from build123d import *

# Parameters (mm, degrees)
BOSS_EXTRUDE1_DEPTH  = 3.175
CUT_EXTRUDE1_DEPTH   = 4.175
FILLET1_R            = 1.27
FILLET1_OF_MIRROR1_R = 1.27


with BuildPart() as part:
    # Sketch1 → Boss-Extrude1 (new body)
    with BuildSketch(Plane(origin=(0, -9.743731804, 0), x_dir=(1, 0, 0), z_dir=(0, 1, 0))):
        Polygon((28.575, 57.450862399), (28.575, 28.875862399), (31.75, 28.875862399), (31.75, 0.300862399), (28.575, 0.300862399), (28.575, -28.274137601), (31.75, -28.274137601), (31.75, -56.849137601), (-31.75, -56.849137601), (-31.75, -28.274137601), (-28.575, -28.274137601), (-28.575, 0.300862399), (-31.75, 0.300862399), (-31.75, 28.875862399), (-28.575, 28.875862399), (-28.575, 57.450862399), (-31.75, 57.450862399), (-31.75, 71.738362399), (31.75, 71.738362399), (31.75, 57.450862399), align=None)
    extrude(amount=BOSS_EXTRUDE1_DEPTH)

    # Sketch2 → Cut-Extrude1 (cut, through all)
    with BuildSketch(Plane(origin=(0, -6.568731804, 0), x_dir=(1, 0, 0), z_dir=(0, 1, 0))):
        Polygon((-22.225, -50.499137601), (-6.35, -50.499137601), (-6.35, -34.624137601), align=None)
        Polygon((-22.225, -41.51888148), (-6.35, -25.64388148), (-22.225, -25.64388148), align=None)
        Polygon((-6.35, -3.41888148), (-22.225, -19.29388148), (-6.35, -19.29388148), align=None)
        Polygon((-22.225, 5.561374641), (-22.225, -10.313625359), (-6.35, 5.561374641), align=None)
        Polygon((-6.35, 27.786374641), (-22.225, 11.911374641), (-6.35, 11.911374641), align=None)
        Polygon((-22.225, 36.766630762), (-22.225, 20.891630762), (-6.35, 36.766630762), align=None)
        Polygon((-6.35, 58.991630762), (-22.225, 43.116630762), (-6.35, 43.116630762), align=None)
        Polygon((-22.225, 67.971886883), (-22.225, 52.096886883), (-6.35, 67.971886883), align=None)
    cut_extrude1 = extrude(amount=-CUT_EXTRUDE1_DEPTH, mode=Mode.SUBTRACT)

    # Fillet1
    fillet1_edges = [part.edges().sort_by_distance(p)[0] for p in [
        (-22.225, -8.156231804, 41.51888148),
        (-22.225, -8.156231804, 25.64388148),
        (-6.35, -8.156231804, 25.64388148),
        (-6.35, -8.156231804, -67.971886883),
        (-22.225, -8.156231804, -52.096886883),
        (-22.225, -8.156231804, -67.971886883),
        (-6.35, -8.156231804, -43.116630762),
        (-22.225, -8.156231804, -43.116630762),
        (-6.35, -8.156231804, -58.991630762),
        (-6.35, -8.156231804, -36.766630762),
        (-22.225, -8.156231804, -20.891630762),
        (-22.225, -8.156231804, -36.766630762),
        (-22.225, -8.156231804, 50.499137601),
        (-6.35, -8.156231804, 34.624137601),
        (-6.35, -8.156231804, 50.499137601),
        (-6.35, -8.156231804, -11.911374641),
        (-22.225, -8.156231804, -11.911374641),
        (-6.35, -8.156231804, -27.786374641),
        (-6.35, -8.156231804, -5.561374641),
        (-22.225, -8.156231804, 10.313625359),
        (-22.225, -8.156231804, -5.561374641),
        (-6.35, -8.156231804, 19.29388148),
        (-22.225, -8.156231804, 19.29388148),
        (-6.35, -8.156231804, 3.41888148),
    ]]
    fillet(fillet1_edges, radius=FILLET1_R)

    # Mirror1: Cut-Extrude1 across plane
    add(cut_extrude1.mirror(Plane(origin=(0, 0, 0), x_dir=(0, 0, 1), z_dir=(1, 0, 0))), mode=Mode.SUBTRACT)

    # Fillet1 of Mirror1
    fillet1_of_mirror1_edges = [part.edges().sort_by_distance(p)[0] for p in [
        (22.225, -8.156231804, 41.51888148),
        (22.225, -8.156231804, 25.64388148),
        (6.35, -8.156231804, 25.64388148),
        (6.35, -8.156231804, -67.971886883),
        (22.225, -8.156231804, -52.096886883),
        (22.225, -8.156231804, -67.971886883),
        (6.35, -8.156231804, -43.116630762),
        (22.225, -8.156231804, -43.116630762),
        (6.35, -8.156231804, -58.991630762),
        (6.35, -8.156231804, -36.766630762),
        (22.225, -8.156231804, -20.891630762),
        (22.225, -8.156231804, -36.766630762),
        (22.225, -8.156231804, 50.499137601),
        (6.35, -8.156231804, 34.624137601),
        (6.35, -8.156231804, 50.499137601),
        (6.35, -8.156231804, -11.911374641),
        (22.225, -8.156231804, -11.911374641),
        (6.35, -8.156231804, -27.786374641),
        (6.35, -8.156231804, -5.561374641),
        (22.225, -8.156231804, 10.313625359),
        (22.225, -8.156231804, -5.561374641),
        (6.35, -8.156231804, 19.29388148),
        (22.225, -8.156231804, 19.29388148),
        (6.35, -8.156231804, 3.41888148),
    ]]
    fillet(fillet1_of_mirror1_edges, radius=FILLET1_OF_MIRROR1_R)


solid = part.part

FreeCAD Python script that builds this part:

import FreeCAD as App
import Part
import Sketcher
from FreeCAD import Vector
Q = App.Units.Quantity


def edges_at(feature, points):
    """Names of the edges that pass closest to the given points."""
    edges = feature.Shape.Edges
    near = lambda p: min(range(len(edges)), key=lambda i: edges[i].distToShape(Part.Vertex(*p))[0])
    return sorted({f"Edge{near(p) + 1}" for p in points})

doc = App.newDocument("Part")
body = doc.addObject("PartDesign::Body", "Body")

sketch1 = body.newObject("Sketcher::SketchObject", "Sketch")
sketch1.AttachmentSupport = (doc.getObject("XZ_Plane"), [""])
sketch1.MapMode = "FlatFace"
sketch1.AttachmentOffset = App.Placement(Vector(0, 0, 9.743732), App.Rotation())
sketch1.addGeometry([
    Part.LineSegment(Vector(28.6, -28.9, 0), Vector(28.6, -57.5, 0)),
    Part.LineSegment(Vector(28.6, -57.5, 0), Vector(31.8, -57.5, 0)),
    Part.LineSegment(Vector(31.8, -57.5, 0), Vector(31.8, -71.7, 0)),
    Part.LineSegment(Vector(31.8, -71.7, 0), Vector(-31.8, -71.7, 0)),
    Part.LineSegment(Vector(-31.8, -71.7, 0), Vector(-31.8, -57.5, 0)),
    Part.LineSegment(Vector(-31.8, -57.5, 0), Vector(-28.6, -57.5, 0)),
    Part.LineSegment(Vector(-28.6, -57.5, 0), Vector(-28.6, -28.9, 0)),
    Part.LineSegment(Vector(-28.6, -28.9, 0), Vector(-31.8, -28.9, 0)),
    Part.LineSegment(Vector(-31.8, -28.9, 0), Vector(-31.8, -0.3, 0)),
    Part.LineSegment(Vector(-31.8, -0.3, 0), Vector(-28.6, -0.3, 0)),
    Part.LineSegment(Vector(-28.6, -0.3, 0), Vector(-28.6, 28.3, 0)),
    Part.LineSegment(Vector(-28.6, 28.3, 0), Vector(-31.8, 28.3, 0)),
    Part.LineSegment(Vector(-31.8, 28.3, 0), Vector(-31.8, 56.8, 0)),
    Part.LineSegment(Vector(-31.8, 56.8, 0), Vector(31.8, 56.8, 0)),
    Part.LineSegment(Vector(31.8, 56.8, 0), Vector(31.8, 28.3, 0)),
    Part.LineSegment(Vector(31.8, 28.3, 0), Vector(28.6, 28.3, 0)),
    Part.LineSegment(Vector(28.6, 28.3, 0), Vector(28.6, -0.3, 0)),
    Part.LineSegment(Vector(28.6, -0.3, 0), Vector(31.8, -0.3, 0)),
    Part.LineSegment(Vector(31.8, -0.3, 0), Vector(31.8, -28.9, 0)),
    Part.LineSegment(Vector(31.8, -28.9, 0), Vector(28.6, -28.9, 0)),
], False)
sketch1.addConstraint([
    Sketcher.Constraint("Coincident", 0, 2, 1, 1),
    Sketcher.Constraint("Coincident", 1, 2, 2, 1),
    Sketcher.Constraint("Coincident", 2, 2, 3, 1),
    Sketcher.Constraint("Coincident", 3, 2, 4, 1),
    Sketcher.Constraint("Coincident", 4, 2, 5, 1),
    Sketcher.Constraint("Coincident", 5, 2, 6, 1),
    Sketcher.Constraint("Coincident", 6, 2, 7, 1),
    Sketcher.Constraint("Coincident", 7, 2, 8, 1),
    Sketcher.Constraint("Coincident", 8, 2, 9, 1),
    Sketcher.Constraint("Coincident", 9, 2, 10, 1),
    Sketcher.Constraint("Coincident", 10, 2, 11, 1),
    Sketcher.Constraint("Coincident", 11, 2, 12, 1),
    Sketcher.Constraint("Coincident", 12, 2, 13, 1),
    Sketcher.Constraint("Coincident", 13, 2, 14, 1),
    Sketcher.Constraint("Coincident", 14, 2, 15, 1),
    Sketcher.Constraint("Coincident", 15, 2, 16, 1),
    Sketcher.Constraint("Coincident", 16, 2, 17, 1),
    Sketcher.Constraint("Coincident", 17, 2, 18, 1),
    Sketcher.Constraint("Coincident", 18, 2, 19, 1),
    Sketcher.Constraint("Coincident", 19, 2, 0, 1),
    Sketcher.Constraint("Vertical", 0),
    Sketcher.Constraint("Horizontal", 1),
    Sketcher.Constraint("Vertical", 2),
    Sketcher.Constraint("Horizontal", 3),
    Sketcher.Constraint("Vertical", 4),
    Sketcher.Constraint("Horizontal", 5),
    Sketcher.Constraint("Vertical", 6),
    Sketcher.Constraint("Horizontal", 7),
    Sketcher.Constraint("Vertical", 8),
    Sketcher.Constraint("Horizontal", 9),
    Sketcher.Constraint("Vertical", 10),
    Sketcher.Constraint("Horizontal", 11),
    Sketcher.Constraint("Vertical", 12),
    Sketcher.Constraint("Horizontal", 13),
    Sketcher.Constraint("Vertical", 14),
    Sketcher.Constraint("Horizontal", 15),
    Sketcher.Constraint("Vertical", 16),
    Sketcher.Constraint("Horizontal", 17),
    Sketcher.Constraint("Vertical", 18),
    Sketcher.Constraint("Horizontal", 19),
    Sketcher.Constraint("Symmetric", 1, 2, 4, 2, -2),
    Sketcher.Constraint("Symmetric", 11, 2, 14, 2, -2),
    Sketcher.Constraint("Symmetric", 9, 2, 16, 2, -2),
    Sketcher.Constraint("Symmetric", 7, 2, 18, 2, -2),
    Sketcher.Constraint("Vertical", 4, 2, 7, 2),
    Sketcher.Constraint("Vertical", 6, 2, 9, 2),
    Sketcher.Constraint("Vertical", 8, 2, 11, 2),
    Sketcher.Constraint("Vertical", 0, 2, 15, 2),
    Sketcher.Constraint("Equal", 6, 8),
    Sketcher.Constraint("Equal", 8, 10),
    Sketcher.Constraint("Equal", 10, 12),
    Sketcher.Constraint("DistanceX", 3, 2, 3, 1, Q("2.5 in")),
    Sketcher.Constraint("DistanceX", 1, 1, 1, 2, Q("0.125 in")),
    Sketcher.Constraint("DistanceY", 0, 2, 0, 1, Q("1.125 in")),
    Sketcher.Constraint("DistanceY", 2, 2, 2, 1, Q("0.5625 in")),
    Sketcher.Constraint("DistanceY", 0, 2, -1, 1, Q("57.450862 mm")),
])
pad1 = body.newObject("PartDesign::Pad", "Pad")
pad1.Profile = sketch1
pad1.Length = Q("0.125 in")
pad1.Reversed = True

sketch2 = body.newObject("Sketcher::SketchObject", "Sketch001")
sketch2.AttachmentSupport = (doc.getObject("XZ_Plane"), [""])
sketch2.MapMode = "FlatFace"
sketch2.AttachmentOffset = App.Placement(Vector(0, 0, 6.568732), App.Rotation())
sketch2.addGeometry([
    Part.LineSegment(Vector(-22, 50, 0), Vector(-6, 50, 0)),
    Part.LineSegment(Vector(-6, 50, 0), Vector(-6, 35, 0)),
    Part.LineSegment(Vector(-6, 35, 0), Vector(-22, 50, 0)),
    Part.LineSegment(Vector(-22, 42, 0), Vector(-6, 26, 0)),
    Part.LineSegment(Vector(-6, 26, 0), Vector(-22, 26, 0)),
    Part.LineSegment(Vector(-22, 26, 0), Vector(-22, 42, 0)),
    Part.LineSegment(Vector(-6, 3, 0), Vector(-22, 19, 0)),
    Part.LineSegment(Vector(-22, 19, 0), Vector(-6, 19, 0)),
    Part.LineSegment(Vector(-6, 19, 0), Vector(-6, 3, 0)),
    Part.LineSegment(Vector(-22, -6, 0), Vector(-22, 10, 0)),
    Part.LineSegment(Vector(-22, 10, 0), Vector(-6, -6, 0)),
    Part.LineSegment(Vector(-6, -6, 0), Vector(-22, -6, 0)),
    Part.LineSegment(Vector(-6, -28, 0), Vector(-22, -12, 0)),
    Part.LineSegment(Vector(-22, -12, 0), Vector(-6, -12, 0)),
    Part.LineSegment(Vector(-6, -12, 0), Vector(-6, -28, 0)),
    Part.LineSegment(Vector(-22, -37, 0), Vector(-22, -21, 0)),
    Part.LineSegment(Vector(-22, -21, 0), Vector(-6, -37, 0)),
    Part.LineSegment(Vector(-6, -37, 0), Vector(-22, -37, 0)),
    Part.LineSegment(Vector(-6, -59, 0), Vector(-22, -43, 0)),
    Part.LineSegment(Vector(-22, -43, 0), Vector(-6, -43, 0)),
    Part.LineSegment(Vector(-6, -43, 0), Vector(-6, -59, 0)),
    Part.LineSegment(Vector(-22, -68, 0), Vector(-22, -52, 0)),
    Part.LineSegment(Vector(-22, -52, 0), Vector(-6, -68, 0)),
    Part.LineSegment(Vector(-6, -68, 0), Vector(-22, -68, 0)),
], False)
sketch2.addConstraint([
    Sketcher.Constraint("Coincident", 0, 2, 1, 1),
    Sketcher.Constraint("Coincident", 1, 2, 2, 1),
    Sketcher.Constraint("Coincident", 2, 2, 0, 1),
    Sketcher.Constraint("Coincident", 3, 2, 4, 1),
    Sketcher.Constraint("Coincident", 4, 2, 5, 1),
    Sketcher.Constraint("Coincident", 5, 2, 3, 1),
    Sketcher.Constraint("Coincident", 6, 2, 7, 1),
    Sketcher.Constraint("Coincident", 7, 2, 8, 1),
    Sketcher.Constraint("Coincident", 8, 2, 6, 1),
    Sketcher.Constraint("Coincident", 9, 2, 10, 1),
    Sketcher.Constraint("Coincident", 10, 2, 11, 1),
    Sketcher.Constraint("Coincident", 11, 2, 9, 1),
    Sketcher.Constraint("Coincident", 12, 2, 13, 1),
    Sketcher.Constraint("Coincident", 13, 2, 14, 1),
    Sketcher.Constraint("Coincident", 14, 2, 12, 1),
    Sketcher.Constraint("Coincident", 15, 2, 16, 1),
    Sketcher.Constraint("Coincident", 16, 2, 17, 1),
    Sketcher.Constraint("Coincident", 17, 2, 15, 1),
    Sketcher.Constraint("Coincident", 18, 2, 19, 1),
    Sketcher.Constraint("Coincident", 19, 2, 20, 1),
    Sketcher.Constraint("Coincident", 20, 2, 18, 1),
    Sketcher.Constraint("Coincident", 21, 2, 22, 1),
    Sketcher.Constraint("Coincident", 22, 2, 23, 1),
    Sketcher.Constraint("Coincident", 23, 2, 21, 1),
    Sketcher.Constraint("Horizontal", 0),
    Sketcher.Constraint("Vertical", 1),
    Sketcher.Constraint("Horizontal", 4),
    Sketcher.Constraint("Vertical", 5),
    Sketcher.Constraint("Horizontal", 7),
    Sketcher.Constraint("Vertical", 8),
    Sketcher.Constraint("Vertical", 9),
    Sketcher.Constraint("Horizontal", 11),
    Sketcher.Constraint("Horizontal", 13),
    Sketcher.Constraint("Vertical", 14),
    Sketcher.Constraint("Vertical", 15),
    Sketcher.Constraint("Horizontal", 17),
    Sketcher.Constraint("Horizontal", 19),
    Sketcher.Constraint("Vertical", 20),
    Sketcher.Constraint("Vertical", 21),
    Sketcher.Constraint("Horizontal", 23),
    Sketcher.Constraint("Parallel", 2, 3),
    Sketcher.Constraint("Parallel", 3, 6),
    Sketcher.Constraint("Parallel", 6, 10),
    Sketcher.Constraint("Parallel", 10, 12),
    Sketcher.Constraint("Parallel", 12, 16),
    Sketcher.Constraint("Parallel", 16, 18),
    Sketcher.Constraint("Parallel", 18, 22),
    Sketcher.Constraint("Vertical", 1, 2, 3, 2),
    Sketcher.Constraint("Vertical", 2, 2, 4, 2),
    Sketcher.Constraint("Vertical", 5, 2, 6, 2),
    Sketcher.Constraint("Vertical", 3, 2, 7, 2),
    Sketcher.Constraint("Vertical", 6, 2, 9, 2),
    Sketcher.Constraint("Vertical", 8, 2, 10, 2),
    Sketcher.Constraint("Vertical", 11, 2, 12, 2),
    Sketcher.Constraint("Vertical", 10, 2, 13, 2),
    Sketcher.Constraint("Vertical", 12, 2, 15, 2),
    Sketcher.Constraint("Vertical", 14, 2, 16, 2),
    Sketcher.Constraint("Vertical", 17, 2, 18, 2),
    Sketcher.Constraint("Vertical", 16, 2, 19, 2),
    Sketcher.Constraint("Vertical", 18, 2, 21, 2),
    Sketcher.Constraint("Vertical", 20, 2, 22, 2),
    Sketcher.Constraint("Equal", 23, 1),
    Sketcher.Constraint("DistanceX", 0, 1, 0, 2, Q("0.625 in")),
    Sketcher.Constraint("DistanceX", 0, 2, -1, 1, Q("0.25 in")),
    Sketcher.Constraint("DistanceY", 6, 2, 4, 2, Q("0.25 in")),
    Sketcher.Constraint("DistanceY", 12, 2, 11, 2, Q("0.25 in")),
    Sketcher.Constraint("DistanceY", 18, 2, 17, 2, Q("0.25 in")),
    Sketcher.Constraint("DistanceY", -1, 1, 3, 2, Q("25.643881 mm")),
    Sketcher.Constraint("DistanceY", 15, 2, -1, 1, Q("20.891631 mm")),
    Sketcher.Constraint("DistanceY", -1, 1, 0, 2, Q("50.499138 mm")),
    Sketcher.Constraint("DistanceY", -1, 1, 9, 2, Q("10.313625 mm")),
    Sketcher.Constraint("DistanceY", 21, 2, -1, 1, Q("52.096887 mm")),
])
pocket1 = body.newObject("PartDesign::Pocket", "Pocket")
pocket1.Profile = sketch2
pocket1.Type = "ThroughAll"
pocket1.Reversed = True
doc.recompute()

fillet = body.newObject("PartDesign::Fillet", "Fillet")
fillet.Base = (pocket1, edges_at(pocket1, [
    (-22.225, -8.156, 41.519),
    (-22.225, -8.156, 25.644),
    (-6.35, -8.156, 25.644),
    (-6.35, -8.156, -67.972),
    (-22.225, -8.156, -52.097),
    (-22.225, -8.156, -67.972),
    (-6.35, -8.156, -43.117),
    (-22.225, -8.156, -43.117),
    (-6.35, -8.156, -58.992),
    (-6.35, -8.156, -36.767),
    (-22.225, -8.156, -20.892),
    (-22.225, -8.156, -36.767),
    (-22.225, -8.156, 50.499),
    (-6.35, -8.156, 34.624),
    (-6.35, -8.156, 50.499),
    (-6.35, -8.156, -11.911),
    (-22.225, -8.156, -11.911),
    (-6.35, -8.156, -27.786),
    (-6.35, -8.156, -5.561),
    (-22.225, -8.156, 10.314),
    (-22.225, -8.156, -5.561),
    (-6.35, -8.156, 19.294),
    (-22.225, -8.156, 19.294),
    (-6.35, -8.156, 3.419),
]))
fillet.Radius = Q("0.05 in")
doc.recompute()

mirrored = body.newObject("PartDesign::Mirrored", "Mirrored")
mirrored.Originals = [pocket1]
mirrored.MirrorPlane = (doc.getObject("YZ_Plane"), [""])
body.Tip = mirrored
doc.recompute()

fillet2 = body.newObject("PartDesign::Fillet", "Fillet001")
fillet2.Base = (mirrored, edges_at(mirrored, [
    (22.225, -8.156, 41.519),
    (22.225, -8.156, 25.644),
    (6.35, -8.156, 25.644),
    (6.35, -8.156, -67.972),
    (22.225, -8.156, -52.097),
    (22.225, -8.156, -67.972),
    (6.35, -8.156, -43.117),
    (22.225, -8.156, -43.117),
    (6.35, -8.156, -58.992),
    (6.35, -8.156, -36.767),
    (22.225, -8.156, -20.892),
    (22.225, -8.156, -36.767),
    (22.225, -8.156, 50.499),
    (6.35, -8.156, 34.624),
    (6.35, -8.156, 50.499),
    (6.35, -8.156, -11.911),
    (22.225, -8.156, -11.911),
    (6.35, -8.156, -27.786),
    (6.35, -8.156, -5.561),
    (22.225, -8.156, 10.314),
    (22.225, -8.156, -5.561),
    (6.35, -8.156, 19.294),
    (22.225, -8.156, 19.294),
    (6.35, -8.156, 3.419),
]))
fillet2.Radius = Q("0.05 in")

doc.recompute()
